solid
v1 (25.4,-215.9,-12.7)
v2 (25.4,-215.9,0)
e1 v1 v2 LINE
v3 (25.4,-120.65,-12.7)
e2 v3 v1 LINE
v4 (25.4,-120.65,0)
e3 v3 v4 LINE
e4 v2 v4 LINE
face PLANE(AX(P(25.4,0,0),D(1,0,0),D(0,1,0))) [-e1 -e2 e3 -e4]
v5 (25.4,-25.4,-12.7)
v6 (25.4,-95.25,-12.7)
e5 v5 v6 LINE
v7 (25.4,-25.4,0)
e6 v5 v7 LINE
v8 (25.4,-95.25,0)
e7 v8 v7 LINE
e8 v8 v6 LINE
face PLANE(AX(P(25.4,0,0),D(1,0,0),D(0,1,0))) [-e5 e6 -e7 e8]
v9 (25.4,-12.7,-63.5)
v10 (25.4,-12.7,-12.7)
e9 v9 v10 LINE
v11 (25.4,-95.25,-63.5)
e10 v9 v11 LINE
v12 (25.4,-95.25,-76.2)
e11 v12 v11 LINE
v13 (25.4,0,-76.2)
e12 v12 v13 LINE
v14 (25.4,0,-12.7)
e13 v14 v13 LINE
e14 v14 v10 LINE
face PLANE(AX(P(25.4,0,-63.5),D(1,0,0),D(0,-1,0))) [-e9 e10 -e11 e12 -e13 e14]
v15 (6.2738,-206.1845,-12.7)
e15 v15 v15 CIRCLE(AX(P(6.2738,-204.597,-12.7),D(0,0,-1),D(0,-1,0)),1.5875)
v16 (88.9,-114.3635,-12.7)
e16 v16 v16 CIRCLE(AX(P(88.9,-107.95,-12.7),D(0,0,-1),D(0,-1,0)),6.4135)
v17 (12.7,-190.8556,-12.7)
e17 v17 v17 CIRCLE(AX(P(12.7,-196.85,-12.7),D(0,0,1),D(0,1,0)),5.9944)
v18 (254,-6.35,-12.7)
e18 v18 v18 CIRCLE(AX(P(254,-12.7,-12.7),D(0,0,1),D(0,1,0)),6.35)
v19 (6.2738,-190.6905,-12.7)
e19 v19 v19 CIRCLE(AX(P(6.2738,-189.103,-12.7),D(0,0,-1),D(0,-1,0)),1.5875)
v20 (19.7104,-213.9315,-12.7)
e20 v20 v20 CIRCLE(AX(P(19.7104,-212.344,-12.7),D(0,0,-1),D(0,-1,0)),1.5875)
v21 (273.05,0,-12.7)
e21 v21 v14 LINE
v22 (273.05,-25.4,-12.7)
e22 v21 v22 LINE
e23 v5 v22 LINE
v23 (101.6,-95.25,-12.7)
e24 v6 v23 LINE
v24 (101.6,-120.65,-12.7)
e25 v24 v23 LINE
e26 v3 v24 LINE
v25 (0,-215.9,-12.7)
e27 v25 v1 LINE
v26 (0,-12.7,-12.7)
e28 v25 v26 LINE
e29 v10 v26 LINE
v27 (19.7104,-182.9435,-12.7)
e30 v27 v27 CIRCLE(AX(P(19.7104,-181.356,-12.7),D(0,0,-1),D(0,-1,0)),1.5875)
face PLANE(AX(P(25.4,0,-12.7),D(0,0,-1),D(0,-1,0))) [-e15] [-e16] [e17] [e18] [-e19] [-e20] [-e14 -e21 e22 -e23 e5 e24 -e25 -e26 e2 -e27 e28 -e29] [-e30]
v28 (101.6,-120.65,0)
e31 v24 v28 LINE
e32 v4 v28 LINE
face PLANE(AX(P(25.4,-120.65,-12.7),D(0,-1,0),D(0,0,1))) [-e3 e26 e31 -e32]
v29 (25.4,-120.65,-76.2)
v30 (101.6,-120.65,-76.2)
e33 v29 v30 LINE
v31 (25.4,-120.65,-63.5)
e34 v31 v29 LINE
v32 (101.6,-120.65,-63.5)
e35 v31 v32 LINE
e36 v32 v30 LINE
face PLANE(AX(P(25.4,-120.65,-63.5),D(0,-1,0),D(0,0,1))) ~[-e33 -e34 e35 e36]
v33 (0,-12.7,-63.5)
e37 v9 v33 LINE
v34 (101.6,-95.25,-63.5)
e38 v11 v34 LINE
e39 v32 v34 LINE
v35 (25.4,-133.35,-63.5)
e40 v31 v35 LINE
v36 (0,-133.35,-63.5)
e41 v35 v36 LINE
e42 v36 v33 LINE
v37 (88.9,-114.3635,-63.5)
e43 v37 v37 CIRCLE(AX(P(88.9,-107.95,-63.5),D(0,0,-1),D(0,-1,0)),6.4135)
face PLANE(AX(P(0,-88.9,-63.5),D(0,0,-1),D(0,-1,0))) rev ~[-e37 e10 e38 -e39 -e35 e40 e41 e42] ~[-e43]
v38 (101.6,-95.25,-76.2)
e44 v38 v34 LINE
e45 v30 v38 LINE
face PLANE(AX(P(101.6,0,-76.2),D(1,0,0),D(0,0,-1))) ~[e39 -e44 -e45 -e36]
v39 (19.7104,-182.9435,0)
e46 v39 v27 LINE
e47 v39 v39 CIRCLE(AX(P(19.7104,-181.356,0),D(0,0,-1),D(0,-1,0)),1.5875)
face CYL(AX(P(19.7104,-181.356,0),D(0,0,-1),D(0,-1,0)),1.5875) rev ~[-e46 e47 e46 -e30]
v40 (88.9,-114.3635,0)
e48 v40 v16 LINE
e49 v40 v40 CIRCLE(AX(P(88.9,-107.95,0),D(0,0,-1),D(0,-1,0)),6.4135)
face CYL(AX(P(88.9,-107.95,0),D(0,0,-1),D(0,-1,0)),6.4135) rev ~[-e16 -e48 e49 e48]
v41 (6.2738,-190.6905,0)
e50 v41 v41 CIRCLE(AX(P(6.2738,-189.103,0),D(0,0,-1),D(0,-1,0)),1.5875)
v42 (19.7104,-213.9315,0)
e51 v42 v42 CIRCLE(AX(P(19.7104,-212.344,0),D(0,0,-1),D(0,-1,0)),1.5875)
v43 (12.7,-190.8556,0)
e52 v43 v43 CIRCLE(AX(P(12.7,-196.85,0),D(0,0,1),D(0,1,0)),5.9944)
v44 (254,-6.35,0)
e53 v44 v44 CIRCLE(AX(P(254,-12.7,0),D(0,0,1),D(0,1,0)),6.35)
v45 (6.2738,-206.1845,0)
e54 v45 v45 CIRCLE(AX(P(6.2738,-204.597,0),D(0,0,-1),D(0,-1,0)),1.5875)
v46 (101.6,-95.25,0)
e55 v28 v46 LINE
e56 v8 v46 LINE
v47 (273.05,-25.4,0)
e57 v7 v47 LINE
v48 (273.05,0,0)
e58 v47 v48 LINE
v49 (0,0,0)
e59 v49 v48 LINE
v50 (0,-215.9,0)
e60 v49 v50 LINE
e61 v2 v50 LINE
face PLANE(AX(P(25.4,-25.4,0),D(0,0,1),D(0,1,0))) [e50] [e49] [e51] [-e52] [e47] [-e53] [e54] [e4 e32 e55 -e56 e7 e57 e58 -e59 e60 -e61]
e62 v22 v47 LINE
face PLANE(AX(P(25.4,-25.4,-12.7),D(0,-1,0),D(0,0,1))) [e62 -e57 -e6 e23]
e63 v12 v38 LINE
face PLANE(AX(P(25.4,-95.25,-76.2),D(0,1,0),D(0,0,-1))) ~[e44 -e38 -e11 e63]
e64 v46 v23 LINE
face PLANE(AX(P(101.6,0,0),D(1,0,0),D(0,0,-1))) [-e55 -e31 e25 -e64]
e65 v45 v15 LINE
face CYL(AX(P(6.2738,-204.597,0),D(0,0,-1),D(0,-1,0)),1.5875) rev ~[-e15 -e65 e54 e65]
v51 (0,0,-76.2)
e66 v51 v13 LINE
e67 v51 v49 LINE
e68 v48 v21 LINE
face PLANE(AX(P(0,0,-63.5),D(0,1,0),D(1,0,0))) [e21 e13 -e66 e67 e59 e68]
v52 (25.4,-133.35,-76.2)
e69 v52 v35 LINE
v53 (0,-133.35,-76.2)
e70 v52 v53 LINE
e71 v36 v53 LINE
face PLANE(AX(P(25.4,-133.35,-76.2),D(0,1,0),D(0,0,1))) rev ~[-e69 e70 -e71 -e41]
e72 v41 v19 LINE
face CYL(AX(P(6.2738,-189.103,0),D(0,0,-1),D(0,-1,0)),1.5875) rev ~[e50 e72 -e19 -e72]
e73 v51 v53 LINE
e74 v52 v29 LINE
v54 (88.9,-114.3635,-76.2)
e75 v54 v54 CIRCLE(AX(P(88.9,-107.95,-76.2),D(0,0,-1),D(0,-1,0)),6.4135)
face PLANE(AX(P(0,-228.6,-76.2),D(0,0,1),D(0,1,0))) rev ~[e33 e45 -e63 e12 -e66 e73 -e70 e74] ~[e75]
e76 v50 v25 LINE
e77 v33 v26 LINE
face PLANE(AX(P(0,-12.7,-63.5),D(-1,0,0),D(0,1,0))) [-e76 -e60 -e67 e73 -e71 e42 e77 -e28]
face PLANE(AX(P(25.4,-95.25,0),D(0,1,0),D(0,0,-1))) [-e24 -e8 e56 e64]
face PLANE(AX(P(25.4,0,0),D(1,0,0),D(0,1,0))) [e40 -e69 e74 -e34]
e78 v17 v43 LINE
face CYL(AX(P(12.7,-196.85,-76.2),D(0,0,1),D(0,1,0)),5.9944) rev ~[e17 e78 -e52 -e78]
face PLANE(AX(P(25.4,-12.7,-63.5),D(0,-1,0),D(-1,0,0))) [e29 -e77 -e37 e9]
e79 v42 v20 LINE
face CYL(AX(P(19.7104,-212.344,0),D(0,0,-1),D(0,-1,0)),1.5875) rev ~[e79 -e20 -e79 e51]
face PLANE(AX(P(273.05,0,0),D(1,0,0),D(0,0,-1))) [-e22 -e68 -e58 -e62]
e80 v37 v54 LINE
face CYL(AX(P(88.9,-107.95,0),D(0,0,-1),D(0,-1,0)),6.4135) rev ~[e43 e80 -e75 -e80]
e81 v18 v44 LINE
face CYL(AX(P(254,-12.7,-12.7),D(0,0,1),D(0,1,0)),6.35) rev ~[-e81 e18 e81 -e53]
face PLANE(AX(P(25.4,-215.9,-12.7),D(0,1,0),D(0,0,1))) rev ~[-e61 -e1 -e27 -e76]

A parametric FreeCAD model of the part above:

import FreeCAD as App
import Part
import Sketcher
Q = App.Units.Quantity


def add_polygon(sketch, points):
    """Adds a closed chain of lines whose ends are joined by coincident constraints."""
    first, n = sketch.GeometryCount, len(points)
    for a, b in zip(points, points[1:] + points[:1]):
        sketch.addGeometry(Part.LineSegment(App.Vector(*a, 0), App.Vector(*b, 0)), False)
    for i in range(n):
        sketch.addConstraint(Sketcher.Constraint("Coincident", first + i, 2, first + (i + 1) % n, 1))

doc = App.newDocument("Part")
body = doc.addObject("PartDesign::Body", "Body")

sketch1 = body.newObject("Sketcher::SketchObject", "Sketch")
sketch1.AttachmentSupport = (doc.getObject("YZ_Plane"), [""])
sketch1.MapMode = "FlatFace"
add_polygon(sketch1, [(0, -13), (0, 0), (-229, 0), (-229, -76), (0, -76), (0, -64), (-216, -64), (-216, -13)])
sketch1.addConstraint(Sketcher.Constraint("Vertical", 0))
sketch1.addConstraint(Sketcher.Constraint("Horizontal", 1))
sketch1.addConstraint(Sketcher.Constraint("Vertical", 2))
sketch1.addConstraint(Sketcher.Constraint("Horizontal", 3))
sketch1.addConstraint(Sketcher.Constraint("Vertical", 4))
sketch1.addConstraint(Sketcher.Constraint("Horizontal", 5))
sketch1.addConstraint(Sketcher.Constraint("Vertical", 6))
sketch1.addConstraint(Sketcher.Constraint("Horizontal", 7))
sketch1.addConstraint(Sketcher.Constraint("Coincident", 0, 2, -1, 1))
sketch1.addConstraint(Sketcher.Constraint("PointOnObject", 3, 2, -2))
sketch1.addConstraint(Sketcher.Constraint("Equal", 0, 4))
sketch1.addConstraint(Sketcher.Constraint("DistanceX", 1, 2, 1, 1, Q("9 in")))
sketch1.addConstraint(Sketcher.Constraint("DistanceY", 6, 1, 6, 2, Q("2 in")))
sketch1.addConstraint(Sketcher.Constraint("DistanceY", 0, 1, 0, 2, Q("0.5 in")))
sketch1.addConstraint(Sketcher.Constraint("DistanceX", 2, 2, 5, 2, Q("0.5 in")))
pad1 = body.newObject("PartDesign::Pad", "Pad")
pad1.Profile = sketch1
pad1.Length = Q("1 in")

sketch2 = body.newObject("Sketcher::SketchObject", "Sketch001")
sketch2.AttachmentSupport = (doc.getObject("XY_Plane"), [""])
sketch2.MapMode = "FlatFace"
sketch2.AttachmentOffset = App.Placement(App.Vector(0, 0, -3 * 25.4), App.Rotation())
sketch2.addGeometry(Part.Circle(App.Vector(13, -197, 0), App.Vector(0, 0, 1), 6), False)
sketch2.addConstraint(Sketcher.Constraint("Diameter", 0, Q("0.472 in")))
sketch2.addConstraint(Sketcher.Constraint("DistanceX", -1, 1, 0, 3, Q("0.5 in")))
sketch2.addConstraint(Sketcher.Constraint("DistanceY", 0, 3, -1, 1, Q("7.75 in")))
doc.recompute()
hole = body.newObject("PartDesign::Hole", "Hole")
hole.Profile = sketch2
hole.ThreadType = "None"
hole.Diameter = Q("0.472 in")
hole.DepthType = "ThroughAll"
hole.Reversed = True

sketch3 = body.newObject("Sketcher::SketchObject", "Sketch002")
sketch3.AttachmentSupport = (doc.getObject("YZ_Plane"), [""])
sketch3.MapMode = "FlatFace"
sketch3.AttachmentOffset = App.Placement(App.Vector(0, 0, 1 * 25.4), App.Rotation())
add_polygon(sketch3, [(0, -13), (0, 0), (-25, 0), (-25, -13)])
sketch3.addConstraint(Sketcher.Constraint("Vertical", 0))
sketch3.addConstraint(Sketcher.Constraint("Horizontal", 1))
sketch3.addConstraint(Sketcher.Constraint("Vertical", 2))
sketch3.addConstraint(Sketcher.Constraint("Horizontal", 3))
sketch3.addConstraint(Sketcher.Constraint("Coincident", 0, 2, -1, 1))
sketch3.addConstraint(Sketcher.Constraint("DistanceX", 1, 2, 1, 1, Q("1 in")))
sketch3.addConstraint(Sketcher.Constraint("DistanceY", 0, 1, 0, 2, Q("0.5 in")))
pad2 = body.newObject("PartDesign::Pad", "Pad001")
pad2.Profile = sketch3
pad2.Length = Q("9.75 in")

sketch4 = body.newObject("Sketcher::SketchObject", "Sketch003")
sketch4.AttachmentSupport = (doc.getObject("YZ_Plane"), [""])
sketch4.MapMode = "FlatFace"
sketch4.AttachmentOffset = App.Placement(App.Vector(0, 0, 1 * 25.4), App.Rotation())
add_polygon(sketch4, [(-121, 0), (-121, -13), (-95, -13), (-95, 0)])
sketch4.addConstraint(Sketcher.Constraint("Vertical", 0))
sketch4.addConstraint(Sketcher.Constraint("Horizontal", 1))
sketch4.addConstraint(Sketcher.Constraint("Vertical", 2))
sketch4.addConstraint(Sketcher.Constraint("Horizontal", 3))
sketch4.addConstraint(Sketcher.Constraint("PointOnObject", 2, 2, -1))
sketch4.addConstraint(Sketcher.Constraint("DistanceX", 1, 1, 1, 2, Q("1 in")))
sketch4.addConstraint(Sketcher.Constraint("DistanceY", 0, 2, 0, 1, Q("0.5 in")))
sketch4.addConstraint(Sketcher.Constraint("DistanceX", 0, 2, -1, 1, Q("4.75 in")))
pad3 = body.newObject("PartDesign::Pad", "Pad002")
pad3.Profile = sketch4
pad3.Length = Q("3 in")

sketch5 = body.newObject("Sketcher::SketchObject", "Sketch004")
sketch5.AttachmentSupport = (doc.getObject("XY_Plane"), [""])
sketch5.MapMode = "FlatFace"
sketch5.AttachmentOffset = App.Placement(App.Vector(0, 0, -0.5 * 25.4), App.Rotation())
sketch5.addGeometry(Part.Circle(App.Vector(254, -13, 0), App.Vector(0, 0, 1), 6), False)
sketch5.addConstraint(Sketcher.Constraint("Diameter", 0, Q("0.5 in")))
sketch5.addConstraint(Sketcher.Constraint("DistanceX", -1, 1, 0, 3, Q("10 in")))
sketch5.addConstraint(Sketcher.Constraint("DistanceY", 0, 3, -1, 1, Q("0.5 in")))
doc.recompute()
hole2 = body.newObject("PartDesign::Hole", "Hole001")
hole2.Profile = sketch5
hole2.ThreadType = "None"
hole2.Diameter = Q("0.5 in")
hole2.DepthType = "ThroughAll"
hole2.Reversed = True
doc.recompute()

datumplane = body.newObject("PartDesign::Plane", "DatumPlane")
datumplane.AttachmentSupport = (doc.getObject("XY_Plane"), [""])
datumplane.MapMode = "FlatFace"
datumplane.AttachmentOffset = App.Placement(App.Vector(0, 0, -1.5 * 25.4), App.Rotation())
mirrored = body.newObject("PartDesign::Mirrored", "Mirrored")
mirrored.Originals = [pad3]
mirrored.MirrorPlane = (datumplane, [""])
body.Tip = mirrored

sketch6 = body.newObject("Sketcher::SketchObject", "Sketch005")
sketch6.AttachmentSupport = (doc.getObject("XY_Plane"), [""])
sketch6.MapMode = "FlatFace"
sketch6.addGeometry(Part.Circle(App.Vector(89, -108, 0), App.Vector(0, 0, 1), 6), False)
sketch6.addConstraint(Sketcher.Constraint("Diameter", 0, Q("0.505 in")))
sketch6.addConstraint(Sketcher.Constraint("DistanceX", -1, 1, 0, 3, Q("3.5 in")))
sketch6.addConstraint(Sketcher.Constraint("DistanceY", 0, 3, -1, 1, Q("4.25 in")))
doc.recompute()
hole3 = body.newObject("PartDesign::Hole", "Hole002")
hole3.Profile = sketch6
hole3.ThreadType = "None"
hole3.Diameter = Q("0.505 in")
hole3.DepthType = "ThroughAll"

sketch7 = body.newObject("Sketcher::SketchObject", "Sketch006")
sketch7.AttachmentSupport = (doc.getObject("XY_Plane"), [""])
sketch7.MapMode = "FlatFace"
sketch7.AttachmentOffset = App.Placement(App.Vector(0, 0, -2.5 * 25.4), App.Rotation())
add_polygon(sketch7, [(25, 0), (0, 0), (0, -13), (25, -13)])
sketch7.addConstraint(Sketcher.Constraint("Horizontal", 0))
sketch7.addConstraint(Sketcher.Constraint("Vertical", 1))
sketch7.addConstraint(Sketcher.Constraint("Horizontal", 2))
sketch7.addConstraint(Sketcher.Constraint("Vertical", 3))
sketch7.addConstraint(Sketcher.Constraint("Coincident", 0, 2, -1, 1))
sketch7.addConstraint(Sketcher.Constraint("DistanceY", 1, 2, 1, 1, Q("0.5 in")))
sketch7.addConstraint(Sketcher.Constraint("DistanceX", 0, 2, 0, 1, Q("1 in")))
pad4 = body.newObject("PartDesign::Pad", "Pad003")
pad4.Profile = sketch7
pad4.Length = Q("2 in")

sketch8 = body.newObject("Sketcher::SketchObject", "Sketch007")
sketch8.AttachmentSupport = (doc.getObject("YZ_Plane"), [""])
sketch8.MapMode = "FlatFace"
sketch8.AttachmentOffset = App.Placement(App.Vector(0, 0, 1 * 25.4), App.Rotation())
add_polygon(sketch8, [(-229, 0), (-229, -76), (-133, -76), (-133, -64), (-216, -64), (-216, 0)])
sketch8.addConstraint(Sketcher.Constraint("Vertical", 0))
sketch8.addConstraint(Sketcher.Constraint("Horizontal", 1))
sketch8.addConstraint(Sketcher.Constraint("Vertical", 2))
sketch8.addConstraint(Sketcher.Constraint("Horizontal", 3))
sketch8.addConstraint(Sketcher.Constraint("Vertical", 4))
sketch8.addConstraint(Sketcher.Constraint("Horizontal", 5))
sketch8.addConstraint(Sketcher.Constraint("PointOnObject", 4, 2, -1))
sketch8.addConstraint(Sketcher.Constraint("Equal", 5, 2))
sketch8.addConstraint(Sketcher.Constraint("DistanceX", 5, 2, 5, 1, Q("0.5 in")))
sketch8.addConstraint(Sketcher.Constraint("DistanceY", 0, 2, 0, 1, Q("3 in")))
sketch8.addConstraint(Sketcher.Constraint("DistanceX", 0, 2, -1, 1, Q("9 in")))
sketch8.addConstraint(Sketcher.Constraint("DistanceX", 1, 1, 1, 2, Q("3.75 in")))
pocket1 = body.newObject("PartDesign::Pocket", "Pocket")
pocket1.Profile = sketch8
pocket1.Length = Q("2 in")

sketch9 = body.newObject("Sketcher::SketchObject", "Sketch008")
sketch9.AttachmentSupport = (doc.getObject("XY_Plane"), [""])
sketch9.MapMode = "FlatFace"
sketch9.addGeometry(Part.Circle(App.Vector(6.3, -189.1, 0), App.Vector(0, 0, 1), 1.6), False)
sketch9.addGeometry(Part.Circle(App.Vector(19.7, -181.4, 0), App.Vector(0, 0, 1), 1.6), False)
sketch9.addGeometry(Part.Circle(App.Vector(19.7, -212.3, 0), App.Vector(0, 0, 1), 1.6), False)
sketch9.addGeometry(Part.Circle(App.Vector(6.3, -204.6, 0), App.Vector(0, 0, 1), 1.6), False)
sketch9.addConstraint(Sketcher.Constraint("Equal", 0, 1))
sketch9.addConstraint(Sketcher.Constraint("Equal", 1, 2))
sketch9.addConstraint(Sketcher.Constraint("Equal", 2, 3))
sketch9.addConstraint(Sketcher.Constraint("Vertical", 1, 3, 2, 3))
sketch9.addConstraint(Sketcher.Constraint("Vertical", 0, 3, 3, 3))
sketch9.addConstraint(Sketcher.Constraint("Diameter", 0, Q("0.125 in")))
sketch9.addConstraint(Sketcher.Constraint("DistanceY", 1, 3, -1, 1, Q("7.14 in")))
sketch9.addConstraint(Sketcher.Constraint("DistanceY", 2, 3, -1, 1, Q("8.36 in")))
sketch9.addConstraint(Sketcher.Constraint("DistanceY", 3, 3, 0, 3, Q("0.61 in")))
sketch9.addConstraint(Sketcher.Constraint("DistanceX", -1, 1, 0, 3, Q("0.247 in")))
sketch9.addConstraint(Sketcher.Constraint("DistanceY", 0, 3, -1, 1, Q("7.445 in")))
sketch9.addConstraint(Sketcher.Constraint("DistanceX", -1, 1, 1, 3, Q("0.776 in")))
doc.recompute()
hole4 = body.newObject("PartDesign::Hole", "Hole003")
hole4.Profile = sketch9
hole4.ThreadType = "None"
hole4.Diameter = Q("0.125 in")
hole4.DepthType = "ThroughAll"

doc.recompute()
